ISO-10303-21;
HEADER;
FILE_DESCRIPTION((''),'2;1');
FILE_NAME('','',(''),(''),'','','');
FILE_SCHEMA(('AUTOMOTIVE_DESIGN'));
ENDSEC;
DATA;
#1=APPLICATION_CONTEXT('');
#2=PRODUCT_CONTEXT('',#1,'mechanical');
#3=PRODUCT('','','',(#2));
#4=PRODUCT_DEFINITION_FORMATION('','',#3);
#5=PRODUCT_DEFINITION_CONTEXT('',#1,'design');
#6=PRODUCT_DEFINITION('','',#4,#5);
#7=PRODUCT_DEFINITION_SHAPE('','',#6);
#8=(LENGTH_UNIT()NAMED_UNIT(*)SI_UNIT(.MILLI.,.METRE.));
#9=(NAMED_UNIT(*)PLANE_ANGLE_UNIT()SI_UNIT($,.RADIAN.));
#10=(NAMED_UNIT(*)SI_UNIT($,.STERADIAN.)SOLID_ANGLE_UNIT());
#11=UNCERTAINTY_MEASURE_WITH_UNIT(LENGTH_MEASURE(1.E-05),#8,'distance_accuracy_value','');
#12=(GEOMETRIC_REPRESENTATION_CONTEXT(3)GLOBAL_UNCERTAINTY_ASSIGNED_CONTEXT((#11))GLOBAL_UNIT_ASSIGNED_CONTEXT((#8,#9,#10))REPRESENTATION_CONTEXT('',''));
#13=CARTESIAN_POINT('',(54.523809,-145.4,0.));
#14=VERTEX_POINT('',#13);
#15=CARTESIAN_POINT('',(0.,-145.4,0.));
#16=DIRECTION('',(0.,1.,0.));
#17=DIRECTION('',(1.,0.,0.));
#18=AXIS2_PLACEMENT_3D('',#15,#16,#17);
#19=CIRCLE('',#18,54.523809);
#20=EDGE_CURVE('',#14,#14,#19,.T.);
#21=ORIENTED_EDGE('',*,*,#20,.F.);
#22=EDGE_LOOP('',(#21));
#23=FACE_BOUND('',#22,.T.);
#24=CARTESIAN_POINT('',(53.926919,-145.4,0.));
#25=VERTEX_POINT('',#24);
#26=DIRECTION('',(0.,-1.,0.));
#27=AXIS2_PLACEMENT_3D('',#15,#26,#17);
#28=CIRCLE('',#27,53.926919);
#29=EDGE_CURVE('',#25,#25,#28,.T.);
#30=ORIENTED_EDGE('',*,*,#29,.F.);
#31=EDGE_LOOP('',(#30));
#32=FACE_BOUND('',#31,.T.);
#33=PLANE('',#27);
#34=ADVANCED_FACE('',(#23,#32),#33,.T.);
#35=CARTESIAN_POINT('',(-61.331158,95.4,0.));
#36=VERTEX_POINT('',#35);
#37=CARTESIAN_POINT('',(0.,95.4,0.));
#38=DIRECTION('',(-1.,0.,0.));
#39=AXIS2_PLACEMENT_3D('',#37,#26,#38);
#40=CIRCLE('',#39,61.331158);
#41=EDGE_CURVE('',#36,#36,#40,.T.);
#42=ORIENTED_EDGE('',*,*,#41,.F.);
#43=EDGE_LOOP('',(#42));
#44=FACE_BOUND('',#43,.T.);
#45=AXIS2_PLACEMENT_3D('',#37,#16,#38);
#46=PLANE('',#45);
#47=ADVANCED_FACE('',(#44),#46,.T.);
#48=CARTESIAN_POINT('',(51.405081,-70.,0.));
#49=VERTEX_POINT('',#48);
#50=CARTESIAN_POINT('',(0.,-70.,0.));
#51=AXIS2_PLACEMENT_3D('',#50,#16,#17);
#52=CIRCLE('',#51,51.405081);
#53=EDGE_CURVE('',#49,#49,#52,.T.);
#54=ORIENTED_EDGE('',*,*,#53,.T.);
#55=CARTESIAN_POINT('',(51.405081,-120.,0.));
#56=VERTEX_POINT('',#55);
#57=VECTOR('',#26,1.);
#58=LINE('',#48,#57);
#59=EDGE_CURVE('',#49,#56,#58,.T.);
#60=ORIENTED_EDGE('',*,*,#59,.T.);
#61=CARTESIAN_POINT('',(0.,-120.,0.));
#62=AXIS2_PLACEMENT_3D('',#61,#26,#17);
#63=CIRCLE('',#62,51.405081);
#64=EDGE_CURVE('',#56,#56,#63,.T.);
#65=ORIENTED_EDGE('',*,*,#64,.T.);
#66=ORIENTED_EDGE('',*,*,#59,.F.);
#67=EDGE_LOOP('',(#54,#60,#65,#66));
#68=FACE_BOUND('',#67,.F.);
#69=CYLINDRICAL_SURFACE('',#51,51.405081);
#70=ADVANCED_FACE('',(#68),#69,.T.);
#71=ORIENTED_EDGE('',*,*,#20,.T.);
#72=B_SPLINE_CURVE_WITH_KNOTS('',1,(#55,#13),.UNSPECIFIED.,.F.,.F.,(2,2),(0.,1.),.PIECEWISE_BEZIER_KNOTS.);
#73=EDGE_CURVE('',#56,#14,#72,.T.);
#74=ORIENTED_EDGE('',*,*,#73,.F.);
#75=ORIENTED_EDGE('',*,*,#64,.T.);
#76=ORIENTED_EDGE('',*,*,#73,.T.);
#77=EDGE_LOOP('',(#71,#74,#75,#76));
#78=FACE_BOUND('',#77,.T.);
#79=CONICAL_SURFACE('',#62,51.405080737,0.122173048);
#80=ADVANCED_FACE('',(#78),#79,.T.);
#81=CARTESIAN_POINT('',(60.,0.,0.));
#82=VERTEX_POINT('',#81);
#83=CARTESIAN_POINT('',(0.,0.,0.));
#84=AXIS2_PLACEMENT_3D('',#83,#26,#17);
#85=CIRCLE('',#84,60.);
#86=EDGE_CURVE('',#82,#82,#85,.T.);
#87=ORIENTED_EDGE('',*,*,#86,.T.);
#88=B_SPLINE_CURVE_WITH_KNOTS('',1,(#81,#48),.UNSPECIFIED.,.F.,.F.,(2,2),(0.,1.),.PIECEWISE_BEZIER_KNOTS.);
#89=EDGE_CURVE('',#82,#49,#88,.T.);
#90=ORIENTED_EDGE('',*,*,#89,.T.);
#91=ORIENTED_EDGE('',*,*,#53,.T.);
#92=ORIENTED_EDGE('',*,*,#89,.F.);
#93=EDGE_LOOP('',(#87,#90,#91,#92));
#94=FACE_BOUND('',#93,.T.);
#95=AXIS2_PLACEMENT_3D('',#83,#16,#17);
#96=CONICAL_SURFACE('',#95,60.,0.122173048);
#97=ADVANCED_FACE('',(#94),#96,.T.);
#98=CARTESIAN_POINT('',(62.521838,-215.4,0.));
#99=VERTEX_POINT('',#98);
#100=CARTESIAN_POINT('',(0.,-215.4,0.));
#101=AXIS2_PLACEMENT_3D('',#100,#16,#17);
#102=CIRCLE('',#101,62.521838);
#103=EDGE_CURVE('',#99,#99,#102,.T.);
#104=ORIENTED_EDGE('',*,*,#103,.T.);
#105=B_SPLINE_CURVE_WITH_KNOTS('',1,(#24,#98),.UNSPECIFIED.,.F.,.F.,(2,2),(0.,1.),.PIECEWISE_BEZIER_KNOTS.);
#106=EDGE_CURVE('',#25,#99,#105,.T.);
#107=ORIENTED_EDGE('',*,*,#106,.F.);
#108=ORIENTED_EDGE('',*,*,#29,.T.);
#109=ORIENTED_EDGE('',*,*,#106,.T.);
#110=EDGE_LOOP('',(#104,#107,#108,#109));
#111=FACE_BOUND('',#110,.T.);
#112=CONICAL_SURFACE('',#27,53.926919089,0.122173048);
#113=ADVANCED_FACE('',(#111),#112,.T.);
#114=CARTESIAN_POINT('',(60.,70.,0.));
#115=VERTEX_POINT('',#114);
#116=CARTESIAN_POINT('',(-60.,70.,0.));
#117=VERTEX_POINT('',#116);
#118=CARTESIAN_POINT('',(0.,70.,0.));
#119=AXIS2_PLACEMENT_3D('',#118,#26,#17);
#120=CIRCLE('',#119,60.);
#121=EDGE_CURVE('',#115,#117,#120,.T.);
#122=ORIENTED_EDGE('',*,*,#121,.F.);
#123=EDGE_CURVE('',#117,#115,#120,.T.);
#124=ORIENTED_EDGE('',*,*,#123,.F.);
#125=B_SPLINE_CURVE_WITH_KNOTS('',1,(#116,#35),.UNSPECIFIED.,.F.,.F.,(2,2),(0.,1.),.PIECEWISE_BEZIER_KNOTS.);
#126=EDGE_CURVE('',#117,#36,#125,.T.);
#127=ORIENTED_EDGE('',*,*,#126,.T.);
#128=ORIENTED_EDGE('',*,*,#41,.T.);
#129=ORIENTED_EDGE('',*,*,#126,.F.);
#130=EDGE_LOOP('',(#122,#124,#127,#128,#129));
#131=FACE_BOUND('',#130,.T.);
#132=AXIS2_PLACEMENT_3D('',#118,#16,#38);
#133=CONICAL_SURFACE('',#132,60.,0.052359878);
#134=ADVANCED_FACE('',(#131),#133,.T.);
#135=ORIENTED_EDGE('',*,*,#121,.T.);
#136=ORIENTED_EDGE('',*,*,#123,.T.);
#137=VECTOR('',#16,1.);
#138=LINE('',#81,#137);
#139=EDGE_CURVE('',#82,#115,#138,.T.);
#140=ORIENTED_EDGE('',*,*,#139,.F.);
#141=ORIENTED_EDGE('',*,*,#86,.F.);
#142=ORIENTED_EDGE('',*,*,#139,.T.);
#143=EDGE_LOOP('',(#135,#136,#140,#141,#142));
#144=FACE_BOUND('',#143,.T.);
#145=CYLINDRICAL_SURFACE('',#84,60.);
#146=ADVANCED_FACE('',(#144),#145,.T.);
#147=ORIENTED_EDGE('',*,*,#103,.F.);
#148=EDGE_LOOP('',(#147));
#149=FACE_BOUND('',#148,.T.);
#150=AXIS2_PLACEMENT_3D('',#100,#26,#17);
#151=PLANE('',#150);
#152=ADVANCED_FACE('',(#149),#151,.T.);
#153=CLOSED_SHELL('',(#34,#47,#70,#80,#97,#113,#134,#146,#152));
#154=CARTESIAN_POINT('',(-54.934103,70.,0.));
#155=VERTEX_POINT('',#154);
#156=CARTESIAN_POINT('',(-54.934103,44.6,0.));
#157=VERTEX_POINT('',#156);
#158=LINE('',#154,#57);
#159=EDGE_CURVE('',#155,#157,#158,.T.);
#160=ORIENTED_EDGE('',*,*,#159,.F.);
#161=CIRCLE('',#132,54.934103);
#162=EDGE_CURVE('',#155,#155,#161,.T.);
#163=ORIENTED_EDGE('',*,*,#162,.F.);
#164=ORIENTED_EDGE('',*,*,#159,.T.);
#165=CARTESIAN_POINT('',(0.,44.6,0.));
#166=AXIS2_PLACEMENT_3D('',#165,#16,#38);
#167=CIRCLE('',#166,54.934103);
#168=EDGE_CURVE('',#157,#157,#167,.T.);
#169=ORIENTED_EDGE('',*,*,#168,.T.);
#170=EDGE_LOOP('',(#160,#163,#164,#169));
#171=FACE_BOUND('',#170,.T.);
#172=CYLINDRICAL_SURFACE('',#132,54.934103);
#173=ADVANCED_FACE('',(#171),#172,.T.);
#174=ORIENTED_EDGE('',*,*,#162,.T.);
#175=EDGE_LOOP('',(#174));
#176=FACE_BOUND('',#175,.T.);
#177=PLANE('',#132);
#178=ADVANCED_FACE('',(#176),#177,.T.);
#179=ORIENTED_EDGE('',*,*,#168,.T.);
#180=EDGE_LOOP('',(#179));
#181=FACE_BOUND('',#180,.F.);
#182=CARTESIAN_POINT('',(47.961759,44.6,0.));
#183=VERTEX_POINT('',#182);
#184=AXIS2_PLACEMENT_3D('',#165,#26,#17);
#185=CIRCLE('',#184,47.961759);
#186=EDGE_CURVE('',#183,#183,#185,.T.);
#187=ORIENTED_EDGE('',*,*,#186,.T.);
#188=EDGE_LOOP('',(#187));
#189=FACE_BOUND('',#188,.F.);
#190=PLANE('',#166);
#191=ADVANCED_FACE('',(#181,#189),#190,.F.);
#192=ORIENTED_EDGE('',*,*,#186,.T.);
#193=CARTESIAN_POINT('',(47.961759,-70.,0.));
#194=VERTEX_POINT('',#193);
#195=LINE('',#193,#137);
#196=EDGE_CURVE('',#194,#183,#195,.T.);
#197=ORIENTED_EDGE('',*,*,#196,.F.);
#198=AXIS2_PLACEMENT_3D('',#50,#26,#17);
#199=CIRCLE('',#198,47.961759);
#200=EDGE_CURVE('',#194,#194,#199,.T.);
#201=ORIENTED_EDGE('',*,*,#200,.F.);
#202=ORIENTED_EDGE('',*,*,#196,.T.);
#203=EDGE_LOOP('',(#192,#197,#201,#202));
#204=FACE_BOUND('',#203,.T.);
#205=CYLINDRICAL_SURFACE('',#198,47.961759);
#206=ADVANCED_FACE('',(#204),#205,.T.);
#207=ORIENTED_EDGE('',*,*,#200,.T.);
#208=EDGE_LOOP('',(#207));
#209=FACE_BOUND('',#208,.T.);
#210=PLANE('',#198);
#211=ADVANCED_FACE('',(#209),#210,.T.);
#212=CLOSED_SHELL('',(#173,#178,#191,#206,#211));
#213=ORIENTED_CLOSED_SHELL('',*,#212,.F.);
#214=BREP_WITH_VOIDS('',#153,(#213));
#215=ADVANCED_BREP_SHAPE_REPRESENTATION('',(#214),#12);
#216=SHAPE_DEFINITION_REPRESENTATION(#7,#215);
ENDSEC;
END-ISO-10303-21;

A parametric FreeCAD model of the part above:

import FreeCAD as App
import Part
import Sketcher

doc = App.newDocument("Part")
body = doc.addObject("PartDesign::Body", "Body")

# Sketch on XZ plane
sketch1 = body.newObject("Sketcher::SketchObject", "Sketch")
sketch1.AttachmentSupport = (doc.getObject("XZ_Plane"), [""])
sketch1.MapMode = "FlatFace"
sketch1.addGeometry(Part.Circle(App.Vector(0, 0, 0), App.Vector(0, 0, 1), 60), False)
sketch1.addConstraint([
    Sketcher.Constraint("Coincident", 0, 3, -1, 1),
    Sketcher.Constraint("Diameter", 0, 120.0),
])
pad1 = body.newObject("PartDesign::Pad", "Pad")
pad1.Profile = sketch1
pad1.Length = 70
pad1.Reversed = True

# Sketch on XZ plane
sketch2 = body.newObject("Sketcher::SketchObject", "Sketch001")
sketch2.AttachmentSupport = (doc.getObject("XZ_Plane"), [""])
sketch2.MapMode = "FlatFace"
sketch2.addGeometry(Part.Circle(App.Vector(0, 0, 0), App.Vector(0, 0, 1), 60), False)
sketch2.addConstraint([
    Sketcher.Constraint("Coincident", 0, 3, -1, 1),
    Sketcher.Constraint("Diameter", 0, 120.0),
])
pad2 = body.newObject("PartDesign::Pad", "Pad001")
pad2.Profile = sketch2
pad2.Length = 70
pad2.TaperAngle = -7

# Sketch on XZ plane
sketch3 = body.newObject("Sketcher::SketchObject", "Sketch002")
sketch3.AttachmentSupport = (doc.getObject("XZ_Plane"), [""])
sketch3.MapMode = "FlatFace"
sketch3.AttachmentOffset = App.Placement(App.Vector(0, 0, -70), App.Rotation())
sketch3.addGeometry(Part.Circle(App.Vector(0, 0, 0), App.Vector(0, 0, 1), 55), False)
sketch3.addConstraint([
    Sketcher.Constraint("Coincident", 0, 3, -1, 1),
    Sketcher.Constraint("Diameter", 0, 109.868206),
])
pocket1 = body.newObject("PartDesign::Pocket", "Pocket")
pocket1.Profile = sketch3
pocket1.Length = 25.4
pocket1.Reversed = True

# Sketch on XZ plane
sketch4 = body.newObject("Sketcher::SketchObject", "Sketch003")
sketch4.AttachmentSupport = (doc.getObject("XZ_Plane"), [""])
sketch4.MapMode = "FlatFace"
sketch4.AttachmentOffset = App.Placement(App.Vector(0, 0, 70), App.Rotation())
sketch4.addGeometry(Part.Circle(App.Vector(0, 0, 0), App.Vector(0, 0, 1), 48), False)
sketch4.addConstraint([
    Sketcher.Constraint("Coincident", 0, 3, -1, 1),
    Sketcher.Constraint("Diameter", 0, 95.923517),
])
pocket2 = body.newObject("PartDesign::Pocket", "Pocket001")
pocket2.Profile = sketch4
pocket2.Length = 205.994

# Sketch on XZ plane
sketch5 = body.newObject("Sketcher::SketchObject", "Sketch004")
sketch5.AttachmentSupport = (doc.getObject("XZ_Plane"), [""])
sketch5.MapMode = "FlatFace"
sketch5.AttachmentOffset = App.Placement(App.Vector(0, 0, 70), App.Rotation())
sketch5.addGeometry(Part.Circle(App.Vector(0, 0, 0), App.Vector(0, 0, 1), 51), False)
sketch5.addConstraint([
    Sketcher.Constraint("Coincident", 0, 3, -1, 1),
    Sketcher.Constraint("Diameter", 0, 102.810161),
])
pad3 = body.newObject("PartDesign::Pad", "Pad002")
pad3.Profile = sketch5
pad3.Length = 50

# Sketch on XZ plane
sketch6 = body.newObject("Sketcher::SketchObject", "Sketch005")
sketch6.AttachmentSupport = (doc.getObject("XZ_Plane"), [""])
sketch6.MapMode = "FlatFace"
sketch6.AttachmentOffset = App.Placement(App.Vector(0, 0, 120), App.Rotation())
sketch6.addGeometry(Part.Circle(App.Vector(0, 0, 0), App.Vector(0, 0, 1), 51), False)
sketch6.addConstraint([
    Sketcher.Constraint("Coincident", 0, 3, -1, 1),
    Sketcher.Constraint("Diameter", 0, 102.810161),
])
pad4 = body.newObject("PartDesign::Pad", "Pad003")
pad4.Profile = sketch6
pad4.Length = 25.4
pad4.TaperAngle = 7

# Sketch on XZ plane
sketch7 = body.newObject("Sketcher::SketchObject", "Sketch006")
sketch7.AttachmentSupport = (doc.getObject("XZ_Plane"), [""])
sketch7.MapMode = "FlatFace"
sketch7.AttachmentOffset = App.Placement(App.Vector(0, 0, 145.4), App.Rotation())
sketch7.addGeometry(Part.Circle(App.Vector(0, 0, 0), App.Vector(0, 0, 1), 54), False)
sketch7.addConstraint([
    Sketcher.Constraint("Coincident", 0, 3, -1, 1),
    Sketcher.Constraint("Diameter", 0, 107.853838),
])
pad5 = body.newObject("PartDesign::Pad", "Pad004")
pad5.Profile = sketch7
pad5.Length = 70
pad5.TaperAngle = 7

# Sketch on XZ plane
sketch8 = body.newObject("Sketcher::SketchObject", "Sketch007")
sketch8.AttachmentSupport = (doc.getObject("XZ_Plane"), [""])
sketch8.MapMode = "FlatFace"
sketch8.AttachmentOffset = App.Placement(App.Vector(0, 0, -70), App.Rotation())
sketch8.addGeometry(Part.Circle(App.Vector(0, 0, 0), App.Vector(0, 0, 1), 60), False)
sketch8.addConstraint([
    Sketcher.Constraint("Coincident", 0, 3, -1, 1),
    Sketcher.Constraint("Diameter", 0, 120.0),
])
pad6 = body.newObject("PartDesign::Pad", "Pad005")
pad6.Profile = sketch8
pad6.Length = 25.4
pad6.Reversed = True
pad6.TaperAngle = 3

doc.recompute()
